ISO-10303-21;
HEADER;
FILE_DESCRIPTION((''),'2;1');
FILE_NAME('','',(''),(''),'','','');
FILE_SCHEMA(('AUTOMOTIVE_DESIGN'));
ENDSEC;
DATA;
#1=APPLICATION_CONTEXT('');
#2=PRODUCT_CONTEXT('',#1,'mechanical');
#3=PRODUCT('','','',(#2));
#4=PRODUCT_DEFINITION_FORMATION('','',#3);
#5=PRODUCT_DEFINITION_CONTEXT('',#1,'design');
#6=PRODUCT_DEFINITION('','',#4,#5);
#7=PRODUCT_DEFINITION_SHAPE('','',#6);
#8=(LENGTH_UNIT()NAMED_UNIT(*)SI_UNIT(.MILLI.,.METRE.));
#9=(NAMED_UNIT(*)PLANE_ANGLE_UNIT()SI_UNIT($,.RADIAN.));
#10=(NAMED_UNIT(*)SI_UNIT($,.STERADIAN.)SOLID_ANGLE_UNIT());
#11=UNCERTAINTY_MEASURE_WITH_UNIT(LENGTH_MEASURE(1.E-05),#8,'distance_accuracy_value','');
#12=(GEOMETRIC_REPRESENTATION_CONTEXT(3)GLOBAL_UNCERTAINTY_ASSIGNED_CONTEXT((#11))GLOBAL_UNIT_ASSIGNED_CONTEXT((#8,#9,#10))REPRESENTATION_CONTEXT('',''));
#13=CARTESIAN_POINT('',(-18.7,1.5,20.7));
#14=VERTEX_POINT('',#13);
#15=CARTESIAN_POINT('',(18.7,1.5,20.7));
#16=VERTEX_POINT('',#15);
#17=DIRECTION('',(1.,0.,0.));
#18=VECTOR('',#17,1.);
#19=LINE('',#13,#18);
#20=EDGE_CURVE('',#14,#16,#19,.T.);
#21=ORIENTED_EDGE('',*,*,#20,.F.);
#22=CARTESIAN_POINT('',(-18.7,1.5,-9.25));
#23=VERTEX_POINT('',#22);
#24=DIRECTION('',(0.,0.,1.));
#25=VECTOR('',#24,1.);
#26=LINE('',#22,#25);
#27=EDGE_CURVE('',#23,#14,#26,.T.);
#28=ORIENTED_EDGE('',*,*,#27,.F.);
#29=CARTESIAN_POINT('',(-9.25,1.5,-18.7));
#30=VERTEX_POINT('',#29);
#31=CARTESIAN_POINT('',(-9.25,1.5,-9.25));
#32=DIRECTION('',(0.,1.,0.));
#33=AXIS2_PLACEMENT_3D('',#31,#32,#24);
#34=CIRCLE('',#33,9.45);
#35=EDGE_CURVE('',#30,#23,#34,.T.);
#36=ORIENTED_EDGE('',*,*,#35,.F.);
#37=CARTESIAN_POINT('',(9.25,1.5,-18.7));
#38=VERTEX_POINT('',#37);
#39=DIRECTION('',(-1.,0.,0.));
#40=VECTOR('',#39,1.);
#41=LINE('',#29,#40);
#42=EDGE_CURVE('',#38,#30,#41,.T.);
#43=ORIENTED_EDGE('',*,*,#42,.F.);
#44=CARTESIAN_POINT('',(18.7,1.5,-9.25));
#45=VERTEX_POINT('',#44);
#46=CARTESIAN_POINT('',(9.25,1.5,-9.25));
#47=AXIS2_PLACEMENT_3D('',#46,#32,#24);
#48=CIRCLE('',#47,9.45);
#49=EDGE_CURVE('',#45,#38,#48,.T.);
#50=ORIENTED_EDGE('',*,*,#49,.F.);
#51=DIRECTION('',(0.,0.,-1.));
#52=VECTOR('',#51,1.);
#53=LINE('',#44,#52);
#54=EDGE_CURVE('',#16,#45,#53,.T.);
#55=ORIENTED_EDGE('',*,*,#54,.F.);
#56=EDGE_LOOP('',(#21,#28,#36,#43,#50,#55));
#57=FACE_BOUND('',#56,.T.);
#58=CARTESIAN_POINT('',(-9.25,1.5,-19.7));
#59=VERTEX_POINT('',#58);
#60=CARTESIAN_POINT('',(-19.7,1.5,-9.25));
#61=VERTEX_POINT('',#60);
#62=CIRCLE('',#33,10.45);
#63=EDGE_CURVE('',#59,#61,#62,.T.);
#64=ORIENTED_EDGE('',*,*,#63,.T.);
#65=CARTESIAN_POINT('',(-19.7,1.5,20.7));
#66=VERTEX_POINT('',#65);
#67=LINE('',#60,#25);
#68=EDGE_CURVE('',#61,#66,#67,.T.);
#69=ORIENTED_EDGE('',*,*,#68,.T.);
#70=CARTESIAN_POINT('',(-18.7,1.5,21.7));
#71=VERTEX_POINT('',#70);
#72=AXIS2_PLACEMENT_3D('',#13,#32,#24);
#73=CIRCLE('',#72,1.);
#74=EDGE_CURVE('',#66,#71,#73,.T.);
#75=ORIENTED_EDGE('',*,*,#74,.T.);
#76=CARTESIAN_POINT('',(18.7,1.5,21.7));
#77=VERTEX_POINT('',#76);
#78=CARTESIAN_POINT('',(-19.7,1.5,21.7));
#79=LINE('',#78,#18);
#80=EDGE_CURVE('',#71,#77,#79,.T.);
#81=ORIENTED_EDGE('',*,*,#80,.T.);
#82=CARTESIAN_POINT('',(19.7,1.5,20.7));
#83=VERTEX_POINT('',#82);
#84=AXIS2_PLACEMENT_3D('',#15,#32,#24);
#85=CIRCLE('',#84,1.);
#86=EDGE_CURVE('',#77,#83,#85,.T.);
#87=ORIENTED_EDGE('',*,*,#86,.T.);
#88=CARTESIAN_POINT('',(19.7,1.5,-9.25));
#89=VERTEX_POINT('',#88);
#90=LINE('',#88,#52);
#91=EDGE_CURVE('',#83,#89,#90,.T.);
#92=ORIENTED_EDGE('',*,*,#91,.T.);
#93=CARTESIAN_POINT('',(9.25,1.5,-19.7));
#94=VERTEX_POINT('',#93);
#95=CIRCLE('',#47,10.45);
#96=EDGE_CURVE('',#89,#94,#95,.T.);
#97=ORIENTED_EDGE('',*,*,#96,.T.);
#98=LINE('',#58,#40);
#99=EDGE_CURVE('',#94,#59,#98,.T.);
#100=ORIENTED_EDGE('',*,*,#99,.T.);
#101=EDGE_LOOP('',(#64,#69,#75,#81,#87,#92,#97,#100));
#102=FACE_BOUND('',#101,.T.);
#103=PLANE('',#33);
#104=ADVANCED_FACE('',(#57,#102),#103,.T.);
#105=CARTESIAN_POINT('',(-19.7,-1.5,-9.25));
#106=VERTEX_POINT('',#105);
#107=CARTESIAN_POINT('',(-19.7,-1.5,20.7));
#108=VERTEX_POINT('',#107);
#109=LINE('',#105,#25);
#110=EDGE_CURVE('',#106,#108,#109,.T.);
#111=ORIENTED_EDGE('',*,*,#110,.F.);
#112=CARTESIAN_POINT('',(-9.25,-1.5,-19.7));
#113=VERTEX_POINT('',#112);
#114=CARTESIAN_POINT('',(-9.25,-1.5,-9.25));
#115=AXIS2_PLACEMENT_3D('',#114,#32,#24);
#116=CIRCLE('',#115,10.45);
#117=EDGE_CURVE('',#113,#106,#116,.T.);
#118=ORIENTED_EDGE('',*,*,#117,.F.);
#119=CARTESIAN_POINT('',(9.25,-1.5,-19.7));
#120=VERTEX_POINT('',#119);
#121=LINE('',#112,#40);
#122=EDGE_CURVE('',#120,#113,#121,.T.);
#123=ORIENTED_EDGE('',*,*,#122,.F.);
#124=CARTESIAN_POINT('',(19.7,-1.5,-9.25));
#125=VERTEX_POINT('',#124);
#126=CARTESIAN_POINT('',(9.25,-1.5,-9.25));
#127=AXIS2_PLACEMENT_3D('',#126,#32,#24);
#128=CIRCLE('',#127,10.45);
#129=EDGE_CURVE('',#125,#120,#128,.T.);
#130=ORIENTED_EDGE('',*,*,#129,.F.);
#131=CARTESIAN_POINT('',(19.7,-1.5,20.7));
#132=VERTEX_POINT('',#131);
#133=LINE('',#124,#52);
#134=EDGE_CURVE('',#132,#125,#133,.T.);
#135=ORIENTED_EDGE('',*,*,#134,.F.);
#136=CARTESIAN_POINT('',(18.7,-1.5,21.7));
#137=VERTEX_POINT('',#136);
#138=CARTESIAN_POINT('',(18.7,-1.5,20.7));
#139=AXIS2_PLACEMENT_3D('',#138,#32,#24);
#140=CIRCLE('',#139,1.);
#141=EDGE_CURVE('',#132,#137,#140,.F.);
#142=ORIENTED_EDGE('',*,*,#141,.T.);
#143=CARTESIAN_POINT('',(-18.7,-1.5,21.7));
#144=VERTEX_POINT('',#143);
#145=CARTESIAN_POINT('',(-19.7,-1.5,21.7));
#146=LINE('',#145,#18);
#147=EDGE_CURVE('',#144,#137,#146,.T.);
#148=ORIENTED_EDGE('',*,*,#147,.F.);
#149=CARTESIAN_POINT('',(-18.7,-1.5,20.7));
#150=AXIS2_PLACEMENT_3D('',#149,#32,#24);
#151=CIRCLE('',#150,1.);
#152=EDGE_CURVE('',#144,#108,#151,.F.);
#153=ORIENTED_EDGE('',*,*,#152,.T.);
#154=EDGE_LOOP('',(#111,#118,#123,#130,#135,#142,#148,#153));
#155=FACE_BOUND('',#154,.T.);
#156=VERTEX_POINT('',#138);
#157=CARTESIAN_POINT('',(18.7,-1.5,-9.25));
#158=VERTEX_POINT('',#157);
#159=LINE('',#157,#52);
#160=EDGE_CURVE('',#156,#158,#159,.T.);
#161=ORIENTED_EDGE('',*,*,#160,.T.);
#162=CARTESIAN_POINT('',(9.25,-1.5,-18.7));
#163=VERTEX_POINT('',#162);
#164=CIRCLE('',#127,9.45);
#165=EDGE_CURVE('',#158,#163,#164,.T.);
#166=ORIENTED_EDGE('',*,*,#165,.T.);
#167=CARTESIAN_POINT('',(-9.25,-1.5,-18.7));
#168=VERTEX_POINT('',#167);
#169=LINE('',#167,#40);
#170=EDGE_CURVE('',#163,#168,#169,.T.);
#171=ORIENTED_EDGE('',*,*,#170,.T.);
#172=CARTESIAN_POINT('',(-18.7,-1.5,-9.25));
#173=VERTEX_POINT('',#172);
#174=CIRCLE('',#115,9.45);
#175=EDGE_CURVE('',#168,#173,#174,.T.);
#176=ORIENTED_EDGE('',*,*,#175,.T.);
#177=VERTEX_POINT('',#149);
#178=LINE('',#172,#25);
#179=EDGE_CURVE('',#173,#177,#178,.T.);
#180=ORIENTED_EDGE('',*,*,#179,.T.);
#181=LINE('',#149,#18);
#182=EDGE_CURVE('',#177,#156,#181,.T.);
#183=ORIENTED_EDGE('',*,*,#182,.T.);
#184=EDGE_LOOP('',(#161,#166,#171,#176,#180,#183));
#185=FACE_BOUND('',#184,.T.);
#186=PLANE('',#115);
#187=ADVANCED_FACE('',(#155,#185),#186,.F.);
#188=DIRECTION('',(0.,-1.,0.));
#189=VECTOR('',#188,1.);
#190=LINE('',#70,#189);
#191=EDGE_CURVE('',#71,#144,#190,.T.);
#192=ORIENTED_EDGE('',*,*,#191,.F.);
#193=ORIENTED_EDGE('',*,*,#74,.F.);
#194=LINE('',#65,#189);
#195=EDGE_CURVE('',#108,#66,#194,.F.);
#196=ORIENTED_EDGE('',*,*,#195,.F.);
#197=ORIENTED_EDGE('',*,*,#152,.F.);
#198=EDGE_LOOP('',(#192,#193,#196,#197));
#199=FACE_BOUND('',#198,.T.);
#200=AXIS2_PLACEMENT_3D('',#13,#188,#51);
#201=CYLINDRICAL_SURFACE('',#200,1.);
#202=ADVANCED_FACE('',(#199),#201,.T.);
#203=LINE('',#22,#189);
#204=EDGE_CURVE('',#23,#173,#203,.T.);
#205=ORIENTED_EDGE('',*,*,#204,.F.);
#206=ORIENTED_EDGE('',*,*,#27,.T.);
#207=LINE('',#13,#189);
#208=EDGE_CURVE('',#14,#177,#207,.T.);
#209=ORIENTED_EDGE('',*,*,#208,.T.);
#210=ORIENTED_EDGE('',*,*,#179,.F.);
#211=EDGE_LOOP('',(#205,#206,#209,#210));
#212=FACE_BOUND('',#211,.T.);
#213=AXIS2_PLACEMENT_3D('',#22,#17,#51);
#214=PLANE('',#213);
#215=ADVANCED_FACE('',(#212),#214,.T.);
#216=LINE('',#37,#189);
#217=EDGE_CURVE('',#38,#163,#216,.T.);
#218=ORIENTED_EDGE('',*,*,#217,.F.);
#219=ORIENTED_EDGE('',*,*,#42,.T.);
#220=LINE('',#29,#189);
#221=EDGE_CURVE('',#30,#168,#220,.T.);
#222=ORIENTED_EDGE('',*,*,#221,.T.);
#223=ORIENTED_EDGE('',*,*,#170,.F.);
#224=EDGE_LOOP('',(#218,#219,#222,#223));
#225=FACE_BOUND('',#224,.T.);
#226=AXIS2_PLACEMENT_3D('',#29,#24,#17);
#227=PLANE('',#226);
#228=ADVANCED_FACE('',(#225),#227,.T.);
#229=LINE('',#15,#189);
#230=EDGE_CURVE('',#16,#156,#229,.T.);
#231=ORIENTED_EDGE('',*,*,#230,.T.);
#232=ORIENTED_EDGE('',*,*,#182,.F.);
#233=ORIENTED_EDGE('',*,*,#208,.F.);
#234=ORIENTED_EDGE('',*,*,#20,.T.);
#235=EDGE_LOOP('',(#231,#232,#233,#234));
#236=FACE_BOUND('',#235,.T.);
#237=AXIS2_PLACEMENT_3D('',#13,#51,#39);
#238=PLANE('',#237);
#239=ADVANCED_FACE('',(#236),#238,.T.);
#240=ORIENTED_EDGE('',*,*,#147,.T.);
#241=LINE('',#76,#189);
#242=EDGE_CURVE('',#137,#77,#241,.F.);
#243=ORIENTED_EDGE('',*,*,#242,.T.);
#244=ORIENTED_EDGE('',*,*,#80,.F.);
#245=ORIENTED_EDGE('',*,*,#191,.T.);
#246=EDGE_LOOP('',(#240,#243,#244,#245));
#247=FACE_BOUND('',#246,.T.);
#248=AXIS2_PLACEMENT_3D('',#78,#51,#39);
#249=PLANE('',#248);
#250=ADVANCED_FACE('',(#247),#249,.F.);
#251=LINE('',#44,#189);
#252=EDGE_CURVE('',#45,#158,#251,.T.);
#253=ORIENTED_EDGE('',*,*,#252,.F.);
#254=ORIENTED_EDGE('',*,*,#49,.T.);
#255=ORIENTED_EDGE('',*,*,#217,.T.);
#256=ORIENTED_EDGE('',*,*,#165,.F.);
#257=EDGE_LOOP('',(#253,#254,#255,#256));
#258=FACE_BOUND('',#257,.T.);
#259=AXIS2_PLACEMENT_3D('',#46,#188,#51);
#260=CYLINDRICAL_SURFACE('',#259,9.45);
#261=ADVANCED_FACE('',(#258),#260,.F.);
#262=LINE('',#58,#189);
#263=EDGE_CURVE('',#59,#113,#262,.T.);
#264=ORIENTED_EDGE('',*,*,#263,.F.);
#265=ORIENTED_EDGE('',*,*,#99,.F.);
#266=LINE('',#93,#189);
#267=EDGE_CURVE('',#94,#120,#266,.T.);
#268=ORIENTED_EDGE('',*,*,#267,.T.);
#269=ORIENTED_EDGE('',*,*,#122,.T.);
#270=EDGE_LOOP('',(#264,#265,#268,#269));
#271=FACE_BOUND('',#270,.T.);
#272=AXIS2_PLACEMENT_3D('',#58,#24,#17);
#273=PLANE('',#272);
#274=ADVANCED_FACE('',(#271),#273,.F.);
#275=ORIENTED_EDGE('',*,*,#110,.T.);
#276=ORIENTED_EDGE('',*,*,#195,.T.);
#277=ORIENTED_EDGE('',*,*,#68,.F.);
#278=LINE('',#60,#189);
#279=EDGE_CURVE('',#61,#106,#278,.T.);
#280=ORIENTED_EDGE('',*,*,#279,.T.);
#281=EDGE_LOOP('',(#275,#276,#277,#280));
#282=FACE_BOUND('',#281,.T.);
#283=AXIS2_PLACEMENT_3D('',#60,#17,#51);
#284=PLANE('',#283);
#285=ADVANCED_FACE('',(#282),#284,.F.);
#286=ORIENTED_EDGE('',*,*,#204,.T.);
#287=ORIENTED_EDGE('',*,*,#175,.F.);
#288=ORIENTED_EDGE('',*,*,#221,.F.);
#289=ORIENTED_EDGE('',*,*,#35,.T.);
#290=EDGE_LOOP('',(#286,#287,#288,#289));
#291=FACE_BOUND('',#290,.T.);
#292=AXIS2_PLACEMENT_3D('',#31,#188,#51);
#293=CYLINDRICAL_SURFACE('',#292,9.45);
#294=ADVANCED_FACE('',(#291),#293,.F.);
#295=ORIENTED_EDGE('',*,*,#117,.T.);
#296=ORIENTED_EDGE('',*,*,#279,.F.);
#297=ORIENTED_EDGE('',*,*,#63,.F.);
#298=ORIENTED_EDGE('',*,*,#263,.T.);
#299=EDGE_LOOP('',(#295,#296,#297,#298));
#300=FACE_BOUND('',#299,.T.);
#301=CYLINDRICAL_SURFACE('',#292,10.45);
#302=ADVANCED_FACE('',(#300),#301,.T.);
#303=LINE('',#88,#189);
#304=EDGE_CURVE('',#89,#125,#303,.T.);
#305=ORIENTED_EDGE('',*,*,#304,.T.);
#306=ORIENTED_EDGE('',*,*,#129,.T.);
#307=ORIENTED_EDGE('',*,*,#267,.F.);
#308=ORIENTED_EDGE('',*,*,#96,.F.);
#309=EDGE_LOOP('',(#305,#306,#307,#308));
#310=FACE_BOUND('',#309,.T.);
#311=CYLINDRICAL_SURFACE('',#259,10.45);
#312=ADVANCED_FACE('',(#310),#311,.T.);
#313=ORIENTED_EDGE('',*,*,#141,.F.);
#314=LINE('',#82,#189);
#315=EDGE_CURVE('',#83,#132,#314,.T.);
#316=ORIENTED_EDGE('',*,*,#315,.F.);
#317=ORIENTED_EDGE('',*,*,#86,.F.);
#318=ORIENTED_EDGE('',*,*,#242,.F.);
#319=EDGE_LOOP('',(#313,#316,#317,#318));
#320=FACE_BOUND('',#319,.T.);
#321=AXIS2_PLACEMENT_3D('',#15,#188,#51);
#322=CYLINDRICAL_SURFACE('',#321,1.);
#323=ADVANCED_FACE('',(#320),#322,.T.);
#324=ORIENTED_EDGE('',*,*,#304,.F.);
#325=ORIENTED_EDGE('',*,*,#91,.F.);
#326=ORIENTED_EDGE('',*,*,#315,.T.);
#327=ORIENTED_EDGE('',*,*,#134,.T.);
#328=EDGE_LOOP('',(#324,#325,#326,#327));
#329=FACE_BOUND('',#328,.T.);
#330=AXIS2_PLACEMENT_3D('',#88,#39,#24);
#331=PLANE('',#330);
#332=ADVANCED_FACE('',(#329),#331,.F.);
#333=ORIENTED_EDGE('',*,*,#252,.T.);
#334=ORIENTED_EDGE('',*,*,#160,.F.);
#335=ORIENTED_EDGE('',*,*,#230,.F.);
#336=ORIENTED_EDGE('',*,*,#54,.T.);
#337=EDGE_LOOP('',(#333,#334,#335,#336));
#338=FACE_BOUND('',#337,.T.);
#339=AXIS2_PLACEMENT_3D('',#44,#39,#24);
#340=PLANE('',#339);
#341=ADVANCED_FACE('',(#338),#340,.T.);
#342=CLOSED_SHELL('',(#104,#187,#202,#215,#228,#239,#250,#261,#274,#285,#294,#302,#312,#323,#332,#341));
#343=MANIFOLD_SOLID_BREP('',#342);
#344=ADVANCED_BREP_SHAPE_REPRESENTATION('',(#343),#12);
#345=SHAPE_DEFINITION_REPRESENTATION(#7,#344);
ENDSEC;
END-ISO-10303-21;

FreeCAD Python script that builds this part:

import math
import FreeCAD as App
import Part
import Sketcher

V = App.Vector


def edges_at(feature, points):
    """Names of the edges that pass closest to the given points."""
    edges = feature.Shape.Edges
    near = lambda p: min(range(len(edges)), key=lambda i: edges[i].distToShape(Part.Vertex(*p))[0])
    return sorted({f"Edge{near(p) + 1}" for p in points})

doc = App.newDocument("Part")
params = doc.addObject("Spreadsheet::Sheet", "Params")
for row, (alias, value) in enumerate([
    ("sketch1_radius", "10.45 mm"),
    ("sketch1_radius2", "9.45 mm"),
    ("sketch1_width", "39.4 mm"),
    ("sketch1_height", "30.95 mm"),
    ("pad1_length", "3 mm"),
    ("fillet_radius", "1 mm"),
], start=1):
    params.set(f"A{row}", alias)
    params.set(f"B{row}", "=" + value)
    params.setAlias(f"B{row}", alias)

body = doc.addObject("PartDesign::Body", "Body")

# Sketch on XZ plane
sketch1 = body.newObject("Sketcher::SketchObject", "Sketch")
sketch1.AttachmentSupport = (doc.getObject("XZ_Plane"), [""])
sketch1.MapMode = "FlatFace"
sketch1.addGeometry([
    Part.LineSegment(V(-20, -9, 0), V(-20, 22, 0)),  # 0
    Part.LineSegment(V(-20, 22, 0), V(20, 22, 0)),  # 1
    Part.LineSegment(V(20, 22, 0), V(20, -9, 0)),  # 2
    Part.ArcOfCircle(Part.Circle(V(9, -9, 0), V(0, 0, 1), 10), math.radians(-90), math.radians(0)),  # 3
    Part.LineSegment(V(9, -20, 0), V(-9, -20, 0)),  # 4
    Part.ArcOfCircle(Part.Circle(V(-9, -9, 0), V(0, 0, 1), 10), math.radians(-180), math.radians(-90)),  # 5
    Part.LineSegment(V(19, 21, 0), V(-19, 21, 0)),  # 6
    Part.LineSegment(V(-19, 21, 0), V(-19, -9, 0)),  # 7
    Part.ArcOfCircle(Part.Circle(V(-9, -9, 0), V(0, 0, 1), 9), math.radians(-180), math.radians(-90)),  # 8
    Part.LineSegment(V(-9, -19, 0), V(9, -19, 0)),  # 9
    Part.ArcOfCircle(Part.Circle(V(9, -9, 0), V(0, 0, 1), 9), math.radians(-90), math.radians(0)),  # 10
    Part.LineSegment(V(19, -9, 0), V(19, 21, 0)),  # 11
], False)
sketch1.addConstraint([
    Sketcher.Constraint("Coincident", 0, 2, 1, 1),
    Sketcher.Constraint("Coincident", 1, 2, 2, 1),
    Sketcher.Constraint("Tangent", 2, 2, 3, 2),
    Sketcher.Constraint("Tangent", 3, 1, 4, 1),
    Sketcher.Constraint("Tangent", 4, 2, 5, 2),
    Sketcher.Constraint("Tangent", 5, 1, 0, 1),
    Sketcher.Constraint("Coincident", 6, 2, 7, 1),
    Sketcher.Constraint("Tangent", 7, 2, 8, 1),
    Sketcher.Constraint("Tangent", 8, 2, 9, 1),
    Sketcher.Constraint("Tangent", 9, 2, 10, 1),
    Sketcher.Constraint("Tangent", 10, 2, 11, 1),
    Sketcher.Constraint("Coincident", 11, 2, 6, 1),
    Sketcher.Constraint("Vertical", 0),
    Sketcher.Constraint("Horizontal", 1),
    Sketcher.Constraint("Vertical", 2),
    Sketcher.Constraint("Horizontal", 4),
    Sketcher.Constraint("Horizontal", 6),
    Sketcher.Constraint("Vertical", 7),
    Sketcher.Constraint("Horizontal", 9),
    Sketcher.Constraint("Vertical", 11),
    Sketcher.Constraint("Coincident", 8, 3, 5, 3),
    Sketcher.Constraint("Coincident", 10, 3, 3, 3),
    Sketcher.Constraint("Equal", 3, 5),
    Sketcher.Constraint("Radius", 3, 10.45),
    Sketcher.Constraint("Radius", 8, 9.45),
    Sketcher.Constraint("DistanceX", 1, 1, 1, 2, 39.4),
    Sketcher.Constraint("DistanceY", 6, 2, 0, 2, 1.0),
    Sketcher.Constraint("DistanceY", 0, 1, 0, 2, 30.95),
    Sketcher.Constraint("DistanceX", 0, 2, -1, 1, 19.7),
    Sketcher.Constraint("DistanceY", -1, 1, 0, 2, 21.7),
])
sketch1.setExpression("Constraints[23]", "Params.sketch1_radius")
sketch1.setExpression("Constraints[24]", "Params.sketch1_radius2")
sketch1.setExpression("Constraints[25]", "Params.sketch1_width")
sketch1.setExpression("Constraints[27]", "Params.sketch1_height")
pad1 = body.newObject("PartDesign::Pad", "Pad")
pad1.Profile = sketch1
pad1.setExpression("Length", "Params.pad1_length")
pad1.Midplane = True
doc.recompute()

fillet = body.newObject("PartDesign::Fillet", "Fillet")
fillet.Base = (pad1, edges_at(pad1, [(19.7, 0, 21.7), (-19.7, 0, 21.7)]))
fillet.setExpression("Radius", "Params.fillet_radius")

doc.recompute()
